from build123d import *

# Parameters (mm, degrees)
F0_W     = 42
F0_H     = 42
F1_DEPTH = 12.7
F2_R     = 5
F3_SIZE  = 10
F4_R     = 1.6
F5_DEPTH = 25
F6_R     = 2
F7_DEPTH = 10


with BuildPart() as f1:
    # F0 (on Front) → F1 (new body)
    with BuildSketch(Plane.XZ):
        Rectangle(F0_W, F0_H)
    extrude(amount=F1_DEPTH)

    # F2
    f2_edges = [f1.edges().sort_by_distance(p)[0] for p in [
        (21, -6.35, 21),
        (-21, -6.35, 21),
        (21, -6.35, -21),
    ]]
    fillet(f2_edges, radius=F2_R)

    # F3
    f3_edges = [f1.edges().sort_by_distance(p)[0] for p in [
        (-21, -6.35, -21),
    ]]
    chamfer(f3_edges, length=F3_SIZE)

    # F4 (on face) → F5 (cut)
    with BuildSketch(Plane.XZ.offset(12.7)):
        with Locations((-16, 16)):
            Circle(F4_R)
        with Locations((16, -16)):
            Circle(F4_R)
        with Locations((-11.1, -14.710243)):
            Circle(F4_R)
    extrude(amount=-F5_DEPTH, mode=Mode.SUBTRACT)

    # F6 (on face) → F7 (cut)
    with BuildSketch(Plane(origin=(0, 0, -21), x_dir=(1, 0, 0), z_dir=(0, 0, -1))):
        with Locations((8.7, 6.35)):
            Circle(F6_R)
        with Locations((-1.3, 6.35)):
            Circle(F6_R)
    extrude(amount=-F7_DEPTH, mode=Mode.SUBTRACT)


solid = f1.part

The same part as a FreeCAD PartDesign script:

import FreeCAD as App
import Part
import Sketcher
Q = App.Units.Quantity


def edges_at(feature, points):
    """Names of the edges that pass closest to the given points."""
    edges = feature.Shape.Edges
    near = lambda p: min(range(len(edges)), key=lambda i: edges[i].distToShape(Part.Vertex(*p))[0])
    return sorted({f"Edge{near(p) + 1}" for p in points})

doc = App.newDocument("Part")
body = doc.addObject("PartDesign::Body", "Body")

# Sketch on XZ plane
sketch1 = body.newObject("Sketcher::SketchObject", "Sketch")
sketch1.AttachmentSupport = (doc.getObject("XZ_Plane"), [""])
sketch1.MapMode = "FlatFace"
sketch1.addGeometry(Part.LineSegment(App.Vector(-21, 21, 0), App.Vector(-21, -21, 0)), False)
sketch1.addGeometry(Part.LineSegment(App.Vector(-21, -21, 0), App.Vector(21, -21, 0)), False)
sketch1.addGeometry(Part.LineSegment(App.Vector(21, -21, 0), App.Vector(21, 21, 0)), False)
sketch1.addGeometry(Part.LineSegment(App.Vector(21, 21, 0), App.Vector(-21, 21, 0)), False)
sketch1.addConstraint(Sketcher.Constraint("Coincident", 0, 2, 1, 1))
sketch1.addConstraint(Sketcher.Constraint("Coincident", 1, 2, 2, 1))
sketch1.addConstraint(Sketcher.Constraint("Coincident", 2, 2, 3, 1))
sketch1.addConstraint(Sketcher.Constraint("Coincident", 3, 2, 0, 1))
sketch1.addConstraint(Sketcher.Constraint("Vertical", 0))
sketch1.addConstraint(Sketcher.Constraint("Horizontal", 1))
sketch1.addConstraint(Sketcher.Constraint("Vertical", 2))
sketch1.addConstraint(Sketcher.Constraint("Horizontal", 3))
sketch1.addConstraint(Sketcher.Constraint("Symmetric", 0, 2, 2, 2, -1, 1))
sketch1.addConstraint(Sketcher.Constraint("Equal", 3, 0))
sketch1.addConstraint(Sketcher.Constraint("DistanceX", 1, 1, 1, 2, Q("42 mm")))
pad1 = body.newObject("PartDesign::Pad", "Pad")
pad1.Profile = sketch1
pad1.Length = 12.7
doc.recompute()

fillet = body.newObject("PartDesign::Fillet", "Fillet")
fillet.Base = (pad1, edges_at(pad1, [(21, -6.35, 21), (-21, -6.35, 21), (21, -6.35, -21)]))
fillet.Radius = 5
doc.recompute()

chamfer = body.newObject("PartDesign::Chamfer", "Chamfer")
chamfer.Base = (fillet, edges_at(fillet, [(-21, -6.35, -21)]))
chamfer.Size = 10

# Sketch on XZ plane
sketch2 = body.newObject("Sketcher::SketchObject", "Sketch001")
sketch2.AttachmentSupport = (doc.getObject("XZ_Plane"), [""])
sketch2.MapMode = "FlatFace"
sketch2.AttachmentOffset = App.Placement(App.Vector(0, 0, 12.7), App.Rotation())
sketch2.addGeometry(Part.Circle(App.Vector(-16, 16, 0), App.Vector(0, 0, 1), 1.6), False)
sketch2.addGeometry(Part.Circle(App.Vector(16, -16, 0), App.Vector(0, 0, 1), 1.6), False)
sketch2.addGeometry(Part.Circle(App.Vector(-11.1, -14.7, 0), App.Vector(0, 0, 1), 1.6), False)
sketch2.addConstraint(Sketcher.Constraint("Equal", 0, 1))
sketch2.addConstraint(Sketcher.Constraint("Equal", 1, 2))
sketch2.addConstraint(Sketcher.Constraint("Symmetric", 0, 3, 1, 3, -1, 1))
sketch2.addConstraint(Sketcher.Constraint("Diameter", 0, Q("3.2 mm")))
sketch2.addConstraint(Sketcher.Constraint("DistanceX", 0, 3, -1, 1, Q("16 mm")))
sketch2.addConstraint(Sketcher.Constraint("DistanceY", -1, 1, 0, 3, Q("16 mm")))
sketch2.addConstraint(Sketcher.Constraint("DistanceX", 2, 3, -1, 1, Q("11.1 mm")))
sketch2.addConstraint(Sketcher.Constraint("DistanceY", 2, 3, -1, 1, Q("14.710243 mm")))
pocket1 = body.newObject("PartDesign::Pocket", "Pocket")
pocket1.Profile = sketch2
pocket1.Length = 25

# Sketch on XY plane
sketch3 = body.newObject("Sketcher::SketchObject", "Sketch002")
sketch3.AttachmentSupport = (doc.getObject("XY_Plane"), [""])
sketch3.MapMode = "FlatFace"
sketch3.AttachmentOffset = App.Placement(App.Vector(0, 0, -21), App.Rotation())
sketch3.addGeometry(Part.Circle(App.Vector(8.7, -6.3, 0), App.Vector(0, 0, 1), 2), False)
sketch3.addGeometry(Part.Circle(App.Vector(-1.3, -6.3, 0), App.Vector(0, 0, 1), 2), False)
sketch3.addConstraint(Sketcher.Constraint("Equal", 0, 1))
sketch3.addConstraint(Sketcher.Constraint("Horizontal", 0, 3, 1, 3))
sketch3.addConstraint(Sketcher.Constraint("Diameter", 0, Q("4 mm")))
sketch3.addConstraint(Sketcher.Constraint("DistanceX", 1, 3, 0, 3, Q("10 mm")))
sketch3.addConstraint(Sketcher.Constraint("DistanceX", -1, 1, 0, 3, Q("8.7 mm")))
sketch3.addConstraint(Sketcher.Constraint("DistanceY", 0, 3, -1, 1, Q("6.35 mm")))
pocket2 = body.newObject("PartDesign::Pocket", "Pocket001")
pocket2.Profile = sketch3
pocket2.Length = 10
pocket2.Reversed = True

doc.recompute()
